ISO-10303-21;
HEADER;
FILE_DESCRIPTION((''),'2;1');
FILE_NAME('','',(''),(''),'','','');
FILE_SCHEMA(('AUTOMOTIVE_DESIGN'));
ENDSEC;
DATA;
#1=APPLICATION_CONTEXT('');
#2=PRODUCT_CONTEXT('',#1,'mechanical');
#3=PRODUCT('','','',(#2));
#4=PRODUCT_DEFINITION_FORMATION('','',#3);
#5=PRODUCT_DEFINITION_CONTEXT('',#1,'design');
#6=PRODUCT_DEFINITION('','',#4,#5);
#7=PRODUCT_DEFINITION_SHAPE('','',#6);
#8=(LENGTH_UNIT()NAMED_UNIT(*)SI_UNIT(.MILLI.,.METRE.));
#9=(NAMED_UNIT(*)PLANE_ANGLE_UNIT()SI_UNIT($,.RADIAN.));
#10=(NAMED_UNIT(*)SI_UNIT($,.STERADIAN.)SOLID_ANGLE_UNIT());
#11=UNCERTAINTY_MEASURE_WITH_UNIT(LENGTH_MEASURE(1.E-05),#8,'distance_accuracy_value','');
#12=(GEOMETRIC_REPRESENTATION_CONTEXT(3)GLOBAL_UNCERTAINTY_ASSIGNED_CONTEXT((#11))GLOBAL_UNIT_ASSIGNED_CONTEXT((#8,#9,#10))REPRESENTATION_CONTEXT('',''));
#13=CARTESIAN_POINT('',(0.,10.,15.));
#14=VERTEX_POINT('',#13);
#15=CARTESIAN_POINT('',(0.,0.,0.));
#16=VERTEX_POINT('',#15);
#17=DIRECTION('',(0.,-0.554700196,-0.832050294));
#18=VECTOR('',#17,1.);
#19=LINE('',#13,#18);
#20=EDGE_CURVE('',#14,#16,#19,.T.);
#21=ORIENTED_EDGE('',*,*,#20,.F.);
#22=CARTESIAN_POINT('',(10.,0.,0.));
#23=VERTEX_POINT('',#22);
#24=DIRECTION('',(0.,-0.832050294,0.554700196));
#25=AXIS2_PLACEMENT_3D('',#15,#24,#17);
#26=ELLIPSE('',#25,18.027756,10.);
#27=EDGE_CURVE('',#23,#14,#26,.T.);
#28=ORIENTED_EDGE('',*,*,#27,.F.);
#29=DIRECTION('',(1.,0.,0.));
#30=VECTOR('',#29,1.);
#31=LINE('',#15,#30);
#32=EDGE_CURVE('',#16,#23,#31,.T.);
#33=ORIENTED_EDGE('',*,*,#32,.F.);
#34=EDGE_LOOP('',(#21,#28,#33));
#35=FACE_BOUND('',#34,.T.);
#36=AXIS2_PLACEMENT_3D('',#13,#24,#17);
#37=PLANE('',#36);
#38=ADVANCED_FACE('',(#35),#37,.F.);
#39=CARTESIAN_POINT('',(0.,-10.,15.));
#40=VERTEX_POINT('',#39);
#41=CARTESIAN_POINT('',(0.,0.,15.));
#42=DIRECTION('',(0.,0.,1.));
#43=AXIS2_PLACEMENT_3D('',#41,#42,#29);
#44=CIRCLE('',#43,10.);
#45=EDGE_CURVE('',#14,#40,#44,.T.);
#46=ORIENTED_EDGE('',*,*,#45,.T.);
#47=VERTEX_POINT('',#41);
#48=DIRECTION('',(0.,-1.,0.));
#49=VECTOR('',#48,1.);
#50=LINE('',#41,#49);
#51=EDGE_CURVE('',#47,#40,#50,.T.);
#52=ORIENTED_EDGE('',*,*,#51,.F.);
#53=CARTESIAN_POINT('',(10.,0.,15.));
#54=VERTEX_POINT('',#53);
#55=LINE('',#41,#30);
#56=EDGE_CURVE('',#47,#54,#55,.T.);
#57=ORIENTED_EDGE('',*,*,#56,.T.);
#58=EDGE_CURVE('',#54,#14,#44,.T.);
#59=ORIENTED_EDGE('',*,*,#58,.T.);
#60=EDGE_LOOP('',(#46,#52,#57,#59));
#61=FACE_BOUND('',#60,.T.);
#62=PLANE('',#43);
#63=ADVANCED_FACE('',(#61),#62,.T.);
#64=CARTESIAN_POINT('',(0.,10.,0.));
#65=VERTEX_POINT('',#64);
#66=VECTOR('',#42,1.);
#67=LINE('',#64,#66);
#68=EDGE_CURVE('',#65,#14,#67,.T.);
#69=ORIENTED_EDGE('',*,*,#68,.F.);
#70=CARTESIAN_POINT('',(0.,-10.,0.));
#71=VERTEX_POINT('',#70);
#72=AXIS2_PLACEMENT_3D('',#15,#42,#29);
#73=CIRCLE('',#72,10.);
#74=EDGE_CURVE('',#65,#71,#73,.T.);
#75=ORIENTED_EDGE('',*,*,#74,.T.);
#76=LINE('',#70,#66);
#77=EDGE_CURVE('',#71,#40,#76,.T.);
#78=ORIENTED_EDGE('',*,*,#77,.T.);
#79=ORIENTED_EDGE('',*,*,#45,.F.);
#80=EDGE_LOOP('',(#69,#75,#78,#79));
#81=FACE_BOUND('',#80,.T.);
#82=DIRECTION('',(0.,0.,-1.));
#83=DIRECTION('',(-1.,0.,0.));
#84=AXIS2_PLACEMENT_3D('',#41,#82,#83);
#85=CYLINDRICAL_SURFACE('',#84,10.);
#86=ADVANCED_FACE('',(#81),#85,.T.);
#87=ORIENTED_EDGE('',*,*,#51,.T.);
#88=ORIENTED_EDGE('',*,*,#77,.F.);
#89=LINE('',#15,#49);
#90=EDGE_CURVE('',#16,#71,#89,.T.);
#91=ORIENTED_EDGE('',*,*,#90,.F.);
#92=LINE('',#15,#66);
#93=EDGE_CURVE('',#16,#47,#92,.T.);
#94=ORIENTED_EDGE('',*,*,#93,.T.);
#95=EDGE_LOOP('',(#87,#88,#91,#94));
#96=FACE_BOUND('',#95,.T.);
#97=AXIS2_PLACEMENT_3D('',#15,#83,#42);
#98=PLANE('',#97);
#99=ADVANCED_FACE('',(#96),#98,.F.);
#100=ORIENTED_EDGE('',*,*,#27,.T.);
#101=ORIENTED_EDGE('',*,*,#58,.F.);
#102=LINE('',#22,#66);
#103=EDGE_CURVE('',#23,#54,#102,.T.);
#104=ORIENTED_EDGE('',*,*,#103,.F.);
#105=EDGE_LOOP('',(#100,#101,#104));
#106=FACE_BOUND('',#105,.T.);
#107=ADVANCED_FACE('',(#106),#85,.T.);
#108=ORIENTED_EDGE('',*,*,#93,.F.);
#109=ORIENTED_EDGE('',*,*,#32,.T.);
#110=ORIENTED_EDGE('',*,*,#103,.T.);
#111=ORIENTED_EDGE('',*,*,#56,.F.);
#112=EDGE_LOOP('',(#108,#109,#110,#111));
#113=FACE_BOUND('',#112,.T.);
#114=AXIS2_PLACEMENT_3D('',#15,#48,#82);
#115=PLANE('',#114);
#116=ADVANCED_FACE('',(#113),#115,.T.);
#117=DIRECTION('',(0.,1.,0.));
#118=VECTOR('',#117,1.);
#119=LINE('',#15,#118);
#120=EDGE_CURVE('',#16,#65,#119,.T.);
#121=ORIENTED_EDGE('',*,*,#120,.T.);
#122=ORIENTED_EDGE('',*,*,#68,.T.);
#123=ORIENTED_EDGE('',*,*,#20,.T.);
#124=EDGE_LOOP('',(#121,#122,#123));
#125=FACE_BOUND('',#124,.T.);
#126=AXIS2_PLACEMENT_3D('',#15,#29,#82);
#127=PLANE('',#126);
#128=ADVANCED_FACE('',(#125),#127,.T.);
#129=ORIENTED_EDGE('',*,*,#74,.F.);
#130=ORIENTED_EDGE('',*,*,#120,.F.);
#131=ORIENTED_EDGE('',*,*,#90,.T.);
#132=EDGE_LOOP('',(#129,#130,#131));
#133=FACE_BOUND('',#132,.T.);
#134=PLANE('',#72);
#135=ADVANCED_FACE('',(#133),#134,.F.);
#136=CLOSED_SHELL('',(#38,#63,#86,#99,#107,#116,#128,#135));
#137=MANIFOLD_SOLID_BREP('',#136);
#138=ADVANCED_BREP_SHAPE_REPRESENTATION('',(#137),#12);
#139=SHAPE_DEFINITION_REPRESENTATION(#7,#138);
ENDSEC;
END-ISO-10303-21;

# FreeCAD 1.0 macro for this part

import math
import FreeCAD as App
import Part
import Sketcher
from FreeCAD import Vector
Q = App.Units.Quantity

doc = App.newDocument("Part")
body = doc.addObject("PartDesign::Body", "Body")

# Sketch on XY plane
sketch1 = doc.addObject("Sketcher::SketchObject", "Sketch")
body.addObject(sketch1)
sketch1.AttachmentSupport = (doc.XY_Plane, [""])
sketch1.MapMode = "FlatFace"
sketch1.addGeometry(Part.Circle(Vector(0, 0, 0), Vector(0, 0, 1), 10), False)
sketch1.addConstraint(Sketcher.Constraint("Coincident", 0, 3, -1, 1))
sketch1.addConstraint(Sketcher.Constraint("Diameter", 0, Q("20 mm")))
pad1 = doc.addObject("PartDesign::Pad", "Pad")
body.addObject(pad1)
pad1.Profile = sketch1
pad1.Length = 15

# Sketch on XY plane
sketch2 = doc.addObject("Sketcher::SketchObject", "Sketch001")
body.addObject(sketch2)
sketch2.AttachmentSupport = (doc.XY_Plane, [""])
sketch2.MapMode = "FlatFace"
sketch2.AttachmentOffset = App.Placement(Vector(0, 0, 15), App.Rotation())
sketch2.addGeometry(Part.LineSegment(Vector(10, 0, 0), Vector(0, 0, 0)), False)
sketch2.addGeometry(Part.LineSegment(Vector(0, 0, 0), Vector(0, -10, 0)), False)
sketch2.addGeometry(Part.ArcOfCircle(Part.Circle(Vector(0, 0, 0), Vector(0, 0, 1), 10), math.radians(-90), math.radians(0)), False)
sketch2.addConstraint(Sketcher.Constraint("Coincident", 0, 2, 1, 1))
sketch2.addConstraint(Sketcher.Constraint("Coincident", 1, 2, 2, 1))
sketch2.addConstraint(Sketcher.Constraint("Coincident", 2, 2, 0, 1))
sketch2.addConstraint(Sketcher.Constraint("Horizontal", 0))
sketch2.addConstraint(Sketcher.Constraint("Vertical", 1))
sketch2.addConstraint(Sketcher.Constraint("Coincident", 2, 3, -1, 1))
sketch2.addConstraint(Sketcher.Constraint("Coincident", 0, 2, -1, 1))
sketch2.addConstraint(Sketcher.Constraint("Radius", 2, Q("10 mm")))
pocket1 = doc.addObject("PartDesign::Pocket", "Pocket")
body.addObject(pocket1)
pocket1.Profile = sketch2
pocket1.Type = "ThroughAll"

# Sketch on YZ plane
sketch3 = doc.addObject("Sketcher::SketchObject", "Sketch002")
body.addObject(sketch3)
sketch3.AttachmentSupport = (doc.YZ_Plane, [""])
sketch3.MapMode = "FlatFace"
sketch3.AttachmentOffset = App.Placement(Vector(0, 0, 10), App.Rotation())
sketch3.addGeometry(Part.LineSegment(Vector(0, 0, 0), Vector(10, 0, 0)), False)
sketch3.addGeometry(Part.LineSegment(Vector(10, 0, 0), Vector(10, 15, 0)), False)
sketch3.addGeometry(Part.LineSegment(Vector(10, 15, 0), Vector(0, 0, 0)), False)
sketch3.addConstraint(Sketcher.Constraint("Coincident", 0, 2, 1, 1))
sketch3.addConstraint(Sketcher.Constraint("Coincident", 1, 2, 2, 1))
sketch3.addConstraint(Sketcher.Constraint("Coincident", 2, 2, 0, 1))
sketch3.addConstraint(Sketcher.Constraint("Horizontal", 0))
sketch3.addConstraint(Sketcher.Constraint("Vertical", 1))
sketch3.addConstraint(Sketcher.Constraint("Coincident", 2, 2, -1, 1))
sketch3.addConstraint(Sketcher.Constraint("DistanceX", 0, 1, 0, 2, Q("10 mm")))
sketch3.addConstraint(Sketcher.Constraint("DistanceY", 1, 1, 1, 2, Q("15 mm")))
pocket2 = doc.addObject("PartDesign::Pocket", "Pocket001")
body.addObject(pocket2)
pocket2.Profile = sketch3
pocket2.Length = 10

doc.recompute()
